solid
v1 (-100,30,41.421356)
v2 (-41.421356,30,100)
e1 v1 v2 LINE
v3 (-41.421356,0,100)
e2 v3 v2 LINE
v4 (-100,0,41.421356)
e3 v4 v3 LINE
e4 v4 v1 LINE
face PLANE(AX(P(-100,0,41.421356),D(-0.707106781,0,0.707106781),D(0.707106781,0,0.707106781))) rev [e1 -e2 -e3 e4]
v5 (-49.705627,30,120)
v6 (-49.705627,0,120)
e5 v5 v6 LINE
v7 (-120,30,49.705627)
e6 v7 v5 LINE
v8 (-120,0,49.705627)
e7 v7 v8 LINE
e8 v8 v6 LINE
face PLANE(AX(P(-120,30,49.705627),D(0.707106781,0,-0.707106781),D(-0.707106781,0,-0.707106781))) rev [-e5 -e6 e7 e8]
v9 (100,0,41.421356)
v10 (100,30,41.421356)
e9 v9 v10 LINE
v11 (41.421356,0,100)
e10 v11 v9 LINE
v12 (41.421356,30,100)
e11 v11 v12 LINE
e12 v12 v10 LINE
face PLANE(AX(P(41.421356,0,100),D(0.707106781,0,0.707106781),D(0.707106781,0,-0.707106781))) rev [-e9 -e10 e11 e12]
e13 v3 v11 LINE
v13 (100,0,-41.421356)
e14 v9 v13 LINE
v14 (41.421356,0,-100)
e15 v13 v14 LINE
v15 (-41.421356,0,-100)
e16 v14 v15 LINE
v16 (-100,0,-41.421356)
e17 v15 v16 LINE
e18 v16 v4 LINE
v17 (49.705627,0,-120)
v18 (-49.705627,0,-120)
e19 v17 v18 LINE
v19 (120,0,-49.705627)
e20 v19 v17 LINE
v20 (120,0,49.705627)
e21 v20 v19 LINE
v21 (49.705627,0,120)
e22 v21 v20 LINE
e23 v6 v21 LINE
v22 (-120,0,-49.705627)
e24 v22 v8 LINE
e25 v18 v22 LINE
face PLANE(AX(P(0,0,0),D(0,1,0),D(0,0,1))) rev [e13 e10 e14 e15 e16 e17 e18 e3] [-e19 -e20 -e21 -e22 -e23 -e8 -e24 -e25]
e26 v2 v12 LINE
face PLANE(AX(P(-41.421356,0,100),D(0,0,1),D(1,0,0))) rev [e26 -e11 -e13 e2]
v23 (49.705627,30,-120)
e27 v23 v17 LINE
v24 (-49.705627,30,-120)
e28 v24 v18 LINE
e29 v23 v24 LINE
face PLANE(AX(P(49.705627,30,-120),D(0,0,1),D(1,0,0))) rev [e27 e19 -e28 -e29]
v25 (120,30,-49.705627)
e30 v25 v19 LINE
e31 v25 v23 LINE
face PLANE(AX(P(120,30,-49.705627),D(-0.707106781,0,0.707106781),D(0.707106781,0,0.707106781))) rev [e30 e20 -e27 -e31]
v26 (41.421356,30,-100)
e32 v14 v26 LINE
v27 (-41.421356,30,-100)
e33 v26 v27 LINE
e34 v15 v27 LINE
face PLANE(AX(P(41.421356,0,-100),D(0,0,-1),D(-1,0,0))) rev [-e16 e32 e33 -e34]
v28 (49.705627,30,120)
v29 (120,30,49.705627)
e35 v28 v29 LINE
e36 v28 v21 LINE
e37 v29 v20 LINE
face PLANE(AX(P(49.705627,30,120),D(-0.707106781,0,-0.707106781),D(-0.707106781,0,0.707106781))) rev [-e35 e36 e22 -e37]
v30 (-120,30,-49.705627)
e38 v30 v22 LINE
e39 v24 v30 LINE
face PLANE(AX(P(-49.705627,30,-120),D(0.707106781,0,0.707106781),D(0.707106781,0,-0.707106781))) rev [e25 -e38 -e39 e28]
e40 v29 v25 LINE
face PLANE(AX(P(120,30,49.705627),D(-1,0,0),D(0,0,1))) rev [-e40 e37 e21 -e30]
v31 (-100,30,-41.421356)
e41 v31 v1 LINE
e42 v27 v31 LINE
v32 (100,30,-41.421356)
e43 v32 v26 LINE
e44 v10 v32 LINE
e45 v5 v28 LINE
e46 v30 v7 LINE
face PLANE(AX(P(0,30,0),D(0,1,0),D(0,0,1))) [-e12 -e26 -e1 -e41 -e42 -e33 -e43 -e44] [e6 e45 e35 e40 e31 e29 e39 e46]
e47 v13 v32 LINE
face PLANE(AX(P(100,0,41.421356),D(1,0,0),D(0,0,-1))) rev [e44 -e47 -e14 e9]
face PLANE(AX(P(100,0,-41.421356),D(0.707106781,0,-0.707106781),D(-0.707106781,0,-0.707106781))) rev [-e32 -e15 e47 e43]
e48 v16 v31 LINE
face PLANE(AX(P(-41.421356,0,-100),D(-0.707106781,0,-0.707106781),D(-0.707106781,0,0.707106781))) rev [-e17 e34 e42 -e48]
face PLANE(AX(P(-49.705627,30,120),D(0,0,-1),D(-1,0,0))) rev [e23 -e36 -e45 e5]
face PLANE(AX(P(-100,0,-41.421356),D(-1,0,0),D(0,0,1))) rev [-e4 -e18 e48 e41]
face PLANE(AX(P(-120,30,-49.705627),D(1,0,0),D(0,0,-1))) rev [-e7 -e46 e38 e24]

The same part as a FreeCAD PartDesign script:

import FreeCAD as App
import Part
import Sketcher
Q = App.Units.Quantity

doc = App.newDocument("Part")
body = doc.addObject("PartDesign::Body", "Body")

sketch1 = body.newObject("Sketcher::SketchObject", "Sketch")
sketch1.AttachmentSupport = (doc.getObject("XZ_Plane"), [""])
sketch1.MapMode = "FlatFace"
sketch1.addGeometry(Part.LineSegment(App.Vector(120, -50, 0), App.Vector(50, -120, 0)), False)
sketch1.addGeometry(Part.LineSegment(App.Vector(50, -120, 0), App.Vector(-50, -120, 0)), False)
sketch1.addGeometry(Part.LineSegment(App.Vector(-50, -120, 0), App.Vector(-120, -50, 0)), False)
sketch1.addGeometry(Part.LineSegment(App.Vector(-120, -50, 0), App.Vector(-120, 50, 0)), False)
sketch1.addGeometry(Part.LineSegment(App.Vector(-120, 50, 0), App.Vector(-50, 120, 0)), False)
sketch1.addGeometry(Part.LineSegment(App.Vector(-50, 120, 0), App.Vector(50, 120, 0)), False)
sketch1.addGeometry(Part.LineSegment(App.Vector(50, 120, 0), App.Vector(120, 50, 0)), False)
sketch1.addGeometry(Part.LineSegment(App.Vector(120, 50, 0), App.Vector(120, -50, 0)), False)
sketch1.addConstraint(Sketcher.Constraint("Coincident", 0, 2, 1, 1))
sketch1.addConstraint(Sketcher.Constraint("Coincident", 1, 2, 2, 1))
sketch1.addConstraint(Sketcher.Constraint("Coincident", 2, 2, 3, 1))
sketch1.addConstraint(Sketcher.Constraint("Coincident", 3, 2, 4, 1))
sketch1.addConstraint(Sketcher.Constraint("Coincident", 4, 2, 5, 1))
sketch1.addConstraint(Sketcher.Constraint("Coincident", 5, 2, 6, 1))
sketch1.addConstraint(Sketcher.Constraint("Coincident", 6, 2, 7, 1))
sketch1.addConstraint(Sketcher.Constraint("Coincident", 7, 2, 0, 1))
sketch1.addConstraint(Sketcher.Constraint("Horizontal", 1))
sketch1.addConstraint(Sketcher.Constraint("Vertical", 3))
sketch1.addConstraint(Sketcher.Constraint("Horizontal", 5))
sketch1.addConstraint(Sketcher.Constraint("Vertical", 7))
sketch1.addConstraint(Sketcher.Constraint("Symmetric", 0, 2, 4, 2, -1, 1))
sketch1.addConstraint(Sketcher.Constraint("Symmetric", 2, 2, 6, 2, -1, 1))
sketch1.addConstraint(Sketcher.Constraint("Perpendicular", 0, 2))
sketch1.addConstraint(Sketcher.Constraint("Perpendicular", 2, 4))
sketch1.addConstraint(Sketcher.Constraint("Perpendicular", 4, 6))
sketch1.addConstraint(Sketcher.Constraint("Horizontal", 3, 2, 6, 2))
sketch1.addConstraint(Sketcher.Constraint("Vertical", 1, 2, 4, 2))
sketch1.addConstraint(Sketcher.Constraint("Equal", 5, 3))
sketch1.addConstraint(Sketcher.Constraint("DistanceY", 0, 2, -1, 1, Q("120 mm")))
sketch1.addConstraint(Sketcher.Constraint("DistanceX", 1, 2, 1, 1, Q("99.411255 mm")))
pad1 = body.newObject("PartDesign::Pad", "Pad")
pad1.Profile = sketch1
pad1.Length = 30
pad1.Reversed = True

sketch2 = body.newObject("Sketcher::SketchObject", "Sketch001")
sketch2.AttachmentSupport = (doc.getObject("XZ_Plane"), [""])
sketch2.MapMode = "FlatFace"
sketch2.AttachmentOffset = App.Placement(App.Vector(0, 0, -30), App.Rotation())
sketch2.addGeometry(Part.LineSegment(App.Vector(100, -41, 0), App.Vector(41, -100, 0)), False)
sketch2.addGeometry(Part.LineSegment(App.Vector(41, -100, 0), App.Vector(-41, -100, 0)), False)
sketch2.addGeometry(Part.LineSegment(App.Vector(-41, -100, 0), App.Vector(-100, -41, 0)), False)
sketch2.addGeometry(Part.LineSegment(App.Vector(-100, -41, 0), App.Vector(-100, 41, 0)), False)
sketch2.addGeometry(Part.LineSegment(App.Vector(-100, 41, 0), App.Vector(-41, 100, 0)), False)
sketch2.addGeometry(Part.LineSegment(App.Vector(-41, 100, 0), App.Vector(41, 100, 0)), False)
sketch2.addGeometry(Part.LineSegment(App.Vector(41, 100, 0), App.Vector(100, 41, 0)), False)
sketch2.addGeometry(Part.LineSegment(App.Vector(100, 41, 0), App.Vector(100, -41, 0)), False)
sketch2.addConstraint(Sketcher.Constraint("Coincident", 0, 2, 1, 1))
sketch2.addConstraint(Sketcher.Constraint("Coincident", 1, 2, 2, 1))
sketch2.addConstraint(Sketcher.Constraint("Coincident", 2, 2, 3, 1))
sketch2.addConstraint(Sketcher.Constraint("Coincident", 3, 2, 4, 1))
sketch2.addConstraint(Sketcher.Constraint("Coincident", 4, 2, 5, 1))
sketch2.addConstraint(Sketcher.Constraint("Coincident", 5, 2, 6, 1))
sketch2.addConstraint(Sketcher.Constraint("Coincident", 6, 2, 7, 1))
sketch2.addConstraint(Sketcher.Constraint("Coincident", 7, 2, 0, 1))
sketch2.addConstraint(Sketcher.Constraint("Horizontal", 1))
sketch2.addConstraint(Sketcher.Constraint("Vertical", 3))
sketch2.addConstraint(Sketcher.Constraint("Horizontal", 5))
sketch2.addConstraint(Sketcher.Constraint("Vertical", 7))
sketch2.addConstraint(Sketcher.Constraint("Symmetric", 0, 2, 4, 2, -1, 1))
sketch2.addConstraint(Sketcher.Constraint("Symmetric", 2, 2, 6, 2, -1, 1))
sketch2.addConstraint(Sketcher.Constraint("Perpendicular", 0, 2))
sketch2.addConstraint(Sketcher.Constraint("Perpendicular", 2, 4))
sketch2.addConstraint(Sketcher.Constraint("Perpendicular", 4, 6))
sketch2.addConstraint(Sketcher.Constraint("Horizontal", 3, 2, 6, 2))
sketch2.addConstraint(Sketcher.Constraint("Vertical", 1, 2, 4, 2))
sketch2.addConstraint(Sketcher.Constraint("Equal", 5, 3))
sketch2.addConstraint(Sketcher.Constraint("DistanceY", 0, 2, -1, 1, Q("100 mm")))
sketch2.addConstraint(Sketcher.Constraint("DistanceX", 1, 2, 1, 1, Q("82.842712 mm")))
pocket1 = body.newObject("PartDesign::Pocket", "Pocket")
pocket1.Profile = sketch2
pocket1.Length = 30
pocket1.Reversed = True

doc.recompute()
